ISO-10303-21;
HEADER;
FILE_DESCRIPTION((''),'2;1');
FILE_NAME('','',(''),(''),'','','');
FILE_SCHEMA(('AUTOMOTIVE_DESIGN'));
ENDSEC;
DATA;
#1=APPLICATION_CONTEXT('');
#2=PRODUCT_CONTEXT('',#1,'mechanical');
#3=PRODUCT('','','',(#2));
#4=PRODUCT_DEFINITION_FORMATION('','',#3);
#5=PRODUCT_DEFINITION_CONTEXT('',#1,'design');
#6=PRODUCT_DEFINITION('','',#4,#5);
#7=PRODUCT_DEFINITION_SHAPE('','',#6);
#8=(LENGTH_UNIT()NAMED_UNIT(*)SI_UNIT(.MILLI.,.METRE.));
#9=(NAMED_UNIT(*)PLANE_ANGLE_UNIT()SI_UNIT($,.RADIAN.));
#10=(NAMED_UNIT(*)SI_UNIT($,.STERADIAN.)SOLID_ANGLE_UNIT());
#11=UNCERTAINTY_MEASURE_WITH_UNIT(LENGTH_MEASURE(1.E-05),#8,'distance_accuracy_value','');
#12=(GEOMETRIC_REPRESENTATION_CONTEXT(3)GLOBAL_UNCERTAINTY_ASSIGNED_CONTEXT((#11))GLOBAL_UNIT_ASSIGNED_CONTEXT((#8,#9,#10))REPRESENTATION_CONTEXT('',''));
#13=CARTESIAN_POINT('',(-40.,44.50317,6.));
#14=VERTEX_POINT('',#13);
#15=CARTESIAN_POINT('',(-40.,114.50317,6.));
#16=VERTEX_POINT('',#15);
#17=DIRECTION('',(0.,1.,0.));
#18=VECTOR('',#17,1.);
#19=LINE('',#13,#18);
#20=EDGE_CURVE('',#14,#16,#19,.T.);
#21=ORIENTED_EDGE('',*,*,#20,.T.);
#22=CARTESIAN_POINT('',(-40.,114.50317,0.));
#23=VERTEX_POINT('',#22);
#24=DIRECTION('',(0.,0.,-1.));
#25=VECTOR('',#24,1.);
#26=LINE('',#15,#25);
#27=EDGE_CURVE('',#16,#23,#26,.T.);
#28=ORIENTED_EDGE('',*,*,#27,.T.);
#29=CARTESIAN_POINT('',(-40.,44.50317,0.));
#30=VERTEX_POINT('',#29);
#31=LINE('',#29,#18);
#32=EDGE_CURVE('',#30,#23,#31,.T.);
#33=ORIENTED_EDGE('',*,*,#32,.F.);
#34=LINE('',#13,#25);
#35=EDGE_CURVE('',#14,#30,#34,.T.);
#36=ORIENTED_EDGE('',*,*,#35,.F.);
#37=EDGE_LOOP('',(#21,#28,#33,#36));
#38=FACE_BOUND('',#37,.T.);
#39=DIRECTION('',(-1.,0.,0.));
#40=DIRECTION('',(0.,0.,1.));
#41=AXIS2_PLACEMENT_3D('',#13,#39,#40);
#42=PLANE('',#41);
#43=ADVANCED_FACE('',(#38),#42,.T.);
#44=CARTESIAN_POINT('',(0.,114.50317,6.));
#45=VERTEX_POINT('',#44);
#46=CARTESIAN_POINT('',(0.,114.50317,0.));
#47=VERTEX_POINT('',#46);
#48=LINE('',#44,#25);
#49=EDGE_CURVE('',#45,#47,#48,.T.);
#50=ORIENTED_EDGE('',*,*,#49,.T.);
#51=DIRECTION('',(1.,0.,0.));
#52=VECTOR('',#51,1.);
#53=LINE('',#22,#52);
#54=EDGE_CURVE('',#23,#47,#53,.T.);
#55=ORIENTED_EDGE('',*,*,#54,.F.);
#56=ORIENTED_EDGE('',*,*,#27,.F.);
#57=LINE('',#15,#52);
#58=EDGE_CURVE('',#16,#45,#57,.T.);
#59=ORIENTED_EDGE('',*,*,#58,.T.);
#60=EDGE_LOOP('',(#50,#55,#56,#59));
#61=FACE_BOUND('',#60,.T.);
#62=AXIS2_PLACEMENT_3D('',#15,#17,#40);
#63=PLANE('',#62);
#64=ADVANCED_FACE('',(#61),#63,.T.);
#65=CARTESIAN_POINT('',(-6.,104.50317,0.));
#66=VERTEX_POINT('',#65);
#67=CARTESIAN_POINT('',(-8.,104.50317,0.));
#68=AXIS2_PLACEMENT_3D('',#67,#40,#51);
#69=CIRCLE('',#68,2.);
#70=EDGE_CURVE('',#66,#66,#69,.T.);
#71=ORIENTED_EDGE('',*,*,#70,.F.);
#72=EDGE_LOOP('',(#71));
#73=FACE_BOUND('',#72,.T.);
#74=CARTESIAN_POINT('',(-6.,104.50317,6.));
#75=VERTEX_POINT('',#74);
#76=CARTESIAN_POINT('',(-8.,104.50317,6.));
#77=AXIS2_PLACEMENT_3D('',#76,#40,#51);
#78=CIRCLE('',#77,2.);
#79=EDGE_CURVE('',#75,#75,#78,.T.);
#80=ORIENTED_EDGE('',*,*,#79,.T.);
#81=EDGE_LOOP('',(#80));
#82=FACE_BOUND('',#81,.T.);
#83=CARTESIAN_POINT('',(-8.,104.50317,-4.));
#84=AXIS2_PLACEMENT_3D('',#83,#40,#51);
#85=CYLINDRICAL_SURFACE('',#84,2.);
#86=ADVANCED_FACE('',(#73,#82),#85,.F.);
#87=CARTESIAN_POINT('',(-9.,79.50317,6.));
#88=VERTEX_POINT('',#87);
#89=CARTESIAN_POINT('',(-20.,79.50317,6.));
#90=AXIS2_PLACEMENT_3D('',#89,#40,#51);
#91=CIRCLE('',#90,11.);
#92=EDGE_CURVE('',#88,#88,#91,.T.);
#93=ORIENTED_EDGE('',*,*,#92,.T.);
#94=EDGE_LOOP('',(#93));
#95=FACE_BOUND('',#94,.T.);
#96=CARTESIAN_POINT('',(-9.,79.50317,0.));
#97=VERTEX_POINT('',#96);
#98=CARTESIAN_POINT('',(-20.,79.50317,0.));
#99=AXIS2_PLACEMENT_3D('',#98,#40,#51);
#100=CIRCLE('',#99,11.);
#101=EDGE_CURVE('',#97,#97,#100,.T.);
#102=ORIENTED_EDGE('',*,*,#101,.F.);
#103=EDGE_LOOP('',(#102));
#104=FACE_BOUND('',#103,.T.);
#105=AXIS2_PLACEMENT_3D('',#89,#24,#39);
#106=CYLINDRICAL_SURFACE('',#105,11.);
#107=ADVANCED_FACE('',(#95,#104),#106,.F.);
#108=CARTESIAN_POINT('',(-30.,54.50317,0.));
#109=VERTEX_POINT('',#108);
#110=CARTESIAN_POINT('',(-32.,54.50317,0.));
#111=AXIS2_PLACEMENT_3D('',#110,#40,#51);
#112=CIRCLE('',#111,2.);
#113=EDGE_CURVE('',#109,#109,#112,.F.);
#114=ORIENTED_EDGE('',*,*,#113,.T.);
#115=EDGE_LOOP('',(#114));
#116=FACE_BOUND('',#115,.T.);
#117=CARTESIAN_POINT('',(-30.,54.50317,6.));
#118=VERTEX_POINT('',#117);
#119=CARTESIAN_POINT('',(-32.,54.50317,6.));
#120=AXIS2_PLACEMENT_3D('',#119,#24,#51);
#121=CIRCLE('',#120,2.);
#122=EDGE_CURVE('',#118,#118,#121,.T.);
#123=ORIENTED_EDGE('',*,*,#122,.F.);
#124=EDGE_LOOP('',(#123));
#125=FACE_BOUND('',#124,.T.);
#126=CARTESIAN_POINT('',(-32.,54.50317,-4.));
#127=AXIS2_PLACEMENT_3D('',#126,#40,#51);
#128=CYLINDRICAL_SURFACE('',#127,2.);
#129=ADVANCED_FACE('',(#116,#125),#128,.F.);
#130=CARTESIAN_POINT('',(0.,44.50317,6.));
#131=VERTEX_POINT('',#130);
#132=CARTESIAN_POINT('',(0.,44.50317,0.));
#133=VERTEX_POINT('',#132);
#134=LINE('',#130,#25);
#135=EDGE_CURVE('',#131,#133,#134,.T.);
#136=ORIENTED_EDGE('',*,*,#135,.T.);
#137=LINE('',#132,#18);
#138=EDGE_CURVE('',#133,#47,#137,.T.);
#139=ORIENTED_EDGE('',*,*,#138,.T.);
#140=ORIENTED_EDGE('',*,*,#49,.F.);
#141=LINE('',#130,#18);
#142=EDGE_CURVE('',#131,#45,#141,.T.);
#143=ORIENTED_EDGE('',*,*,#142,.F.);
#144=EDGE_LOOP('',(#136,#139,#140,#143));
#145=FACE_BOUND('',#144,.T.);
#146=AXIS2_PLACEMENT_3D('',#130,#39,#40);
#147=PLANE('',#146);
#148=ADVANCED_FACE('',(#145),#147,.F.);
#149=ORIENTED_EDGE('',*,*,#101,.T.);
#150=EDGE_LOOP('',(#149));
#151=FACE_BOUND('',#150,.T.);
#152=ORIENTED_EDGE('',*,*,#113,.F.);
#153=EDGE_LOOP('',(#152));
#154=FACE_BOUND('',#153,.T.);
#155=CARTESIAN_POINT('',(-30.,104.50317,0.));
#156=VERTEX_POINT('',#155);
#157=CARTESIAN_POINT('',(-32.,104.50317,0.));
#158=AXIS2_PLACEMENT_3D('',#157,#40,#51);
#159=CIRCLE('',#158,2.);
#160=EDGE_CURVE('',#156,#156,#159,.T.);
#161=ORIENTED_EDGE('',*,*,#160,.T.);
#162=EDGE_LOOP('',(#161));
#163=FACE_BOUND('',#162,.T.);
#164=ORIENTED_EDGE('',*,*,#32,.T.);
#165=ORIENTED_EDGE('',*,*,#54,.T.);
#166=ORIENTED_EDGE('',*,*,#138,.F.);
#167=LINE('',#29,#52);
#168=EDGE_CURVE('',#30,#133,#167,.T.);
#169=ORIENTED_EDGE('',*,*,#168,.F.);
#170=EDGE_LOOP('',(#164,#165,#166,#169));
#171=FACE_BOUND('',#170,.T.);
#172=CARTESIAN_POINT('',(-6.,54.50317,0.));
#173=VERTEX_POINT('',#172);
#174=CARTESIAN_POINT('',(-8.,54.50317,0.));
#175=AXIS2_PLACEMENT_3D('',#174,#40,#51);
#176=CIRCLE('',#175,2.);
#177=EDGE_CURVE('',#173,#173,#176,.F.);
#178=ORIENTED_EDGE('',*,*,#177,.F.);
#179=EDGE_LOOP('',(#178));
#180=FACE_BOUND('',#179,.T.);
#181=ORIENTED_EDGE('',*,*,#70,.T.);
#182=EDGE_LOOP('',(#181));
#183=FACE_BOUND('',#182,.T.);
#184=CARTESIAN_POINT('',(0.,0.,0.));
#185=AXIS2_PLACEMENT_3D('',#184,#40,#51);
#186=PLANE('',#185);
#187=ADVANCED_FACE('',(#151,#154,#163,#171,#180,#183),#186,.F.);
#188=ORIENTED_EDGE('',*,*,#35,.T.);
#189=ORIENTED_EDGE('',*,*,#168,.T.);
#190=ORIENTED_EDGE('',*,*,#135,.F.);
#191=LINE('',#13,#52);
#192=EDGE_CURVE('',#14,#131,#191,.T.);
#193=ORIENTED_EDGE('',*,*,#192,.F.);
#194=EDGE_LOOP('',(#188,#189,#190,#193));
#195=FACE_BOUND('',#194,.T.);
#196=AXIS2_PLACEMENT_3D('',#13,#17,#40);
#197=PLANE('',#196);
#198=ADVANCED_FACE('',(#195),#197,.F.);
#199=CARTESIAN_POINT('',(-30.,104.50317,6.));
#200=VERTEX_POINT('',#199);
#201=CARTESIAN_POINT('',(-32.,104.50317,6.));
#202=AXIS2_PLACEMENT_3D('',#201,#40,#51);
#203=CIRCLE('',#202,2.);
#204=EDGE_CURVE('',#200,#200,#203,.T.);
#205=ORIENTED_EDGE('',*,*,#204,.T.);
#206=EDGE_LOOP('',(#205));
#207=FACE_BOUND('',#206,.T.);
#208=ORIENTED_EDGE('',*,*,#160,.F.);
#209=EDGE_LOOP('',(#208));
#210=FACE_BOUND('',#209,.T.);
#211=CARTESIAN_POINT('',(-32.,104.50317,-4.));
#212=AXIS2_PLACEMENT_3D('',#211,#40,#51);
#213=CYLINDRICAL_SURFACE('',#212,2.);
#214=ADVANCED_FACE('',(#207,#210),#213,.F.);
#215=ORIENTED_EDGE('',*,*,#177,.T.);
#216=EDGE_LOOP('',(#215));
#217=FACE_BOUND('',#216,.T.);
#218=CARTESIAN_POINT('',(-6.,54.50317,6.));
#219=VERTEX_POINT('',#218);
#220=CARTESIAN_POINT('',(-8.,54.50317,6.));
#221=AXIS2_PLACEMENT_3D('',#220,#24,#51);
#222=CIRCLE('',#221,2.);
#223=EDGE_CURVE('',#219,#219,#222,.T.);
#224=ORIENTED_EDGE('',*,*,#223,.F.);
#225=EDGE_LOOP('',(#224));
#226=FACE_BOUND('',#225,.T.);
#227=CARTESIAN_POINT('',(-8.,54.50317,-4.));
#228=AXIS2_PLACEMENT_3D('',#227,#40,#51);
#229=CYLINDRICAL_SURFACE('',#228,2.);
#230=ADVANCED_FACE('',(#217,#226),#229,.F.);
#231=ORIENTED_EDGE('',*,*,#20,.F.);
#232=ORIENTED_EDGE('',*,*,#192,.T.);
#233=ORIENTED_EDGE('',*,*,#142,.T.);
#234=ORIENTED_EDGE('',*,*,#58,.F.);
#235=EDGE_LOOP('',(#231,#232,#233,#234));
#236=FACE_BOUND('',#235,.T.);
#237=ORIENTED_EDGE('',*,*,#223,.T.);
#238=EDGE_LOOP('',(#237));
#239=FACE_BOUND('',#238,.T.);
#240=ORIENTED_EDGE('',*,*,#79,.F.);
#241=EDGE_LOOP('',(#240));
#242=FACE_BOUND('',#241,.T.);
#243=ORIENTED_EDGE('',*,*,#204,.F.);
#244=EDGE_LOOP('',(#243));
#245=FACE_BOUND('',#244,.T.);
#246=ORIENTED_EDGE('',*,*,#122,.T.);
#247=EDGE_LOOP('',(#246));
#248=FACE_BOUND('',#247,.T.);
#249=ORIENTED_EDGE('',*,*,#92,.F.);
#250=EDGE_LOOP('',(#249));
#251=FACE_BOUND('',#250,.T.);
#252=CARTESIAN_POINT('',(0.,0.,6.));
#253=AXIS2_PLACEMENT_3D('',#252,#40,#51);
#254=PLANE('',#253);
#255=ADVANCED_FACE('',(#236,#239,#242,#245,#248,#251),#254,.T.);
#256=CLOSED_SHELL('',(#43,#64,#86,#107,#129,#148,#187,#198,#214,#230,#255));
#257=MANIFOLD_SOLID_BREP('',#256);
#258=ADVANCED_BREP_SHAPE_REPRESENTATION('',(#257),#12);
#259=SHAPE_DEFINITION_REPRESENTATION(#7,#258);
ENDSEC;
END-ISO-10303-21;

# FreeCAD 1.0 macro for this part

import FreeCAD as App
import Part
import Sketcher
Q = App.Units.Quantity

doc = App.newDocument("Part")
params = doc.addObject("Spreadsheet::Sheet", "Params")
for row, (alias, value) in enumerate([
    ("sketch1_diameter", "22 mm"),
    ("sketch1_width", "40 mm"),
    ("sketch1_height", "70 mm"),
    ("pad1_length", "6 mm"),
    ("sketch2_diameter", "4 mm"),
    ("pocket1_length", "10 mm"),
], start=1):
    params.set(f"A{row}", alias)
    params.set(f"B{row}", "=" + value)
    params.setAlias(f"B{row}", alias)

body = doc.addObject("PartDesign::Body", "Body")

# Sketch on XY plane
sketch1 = body.newObject("Sketcher::SketchObject", "Sketch")
sketch1.AttachmentSupport = (doc.getObject("XY_Plane"), [""])
sketch1.MapMode = "FlatFace"
sketch1.addGeometry([
    Part.LineSegment(App.Vector(-40, 115, 0), App.Vector(-40, 45, 0)),  # 0
    Part.LineSegment(App.Vector(-40, 45, 0), App.Vector(0, 45, 0)),  # 1
    Part.LineSegment(App.Vector(0, 45, 0), App.Vector(0, 115, 0)),  # 2
    Part.LineSegment(App.Vector(0, 115, 0), App.Vector(-40, 115, 0)),  # 3
    Part.Circle(App.Vector(-20, 80, 0), App.Vector(0, 0, 1), 11),  # 4
], False)
sketch1.addConstraint([
    Sketcher.Constraint("Coincident", 0, 2, 1, 1),
    Sketcher.Constraint("Coincident", 1, 2, 2, 1),
    Sketcher.Constraint("Coincident", 2, 2, 3, 1),
    Sketcher.Constraint("Coincident", 3, 2, 0, 1),
    Sketcher.Constraint("Vertical", 0),
    Sketcher.Constraint("Horizontal", 1),
    Sketcher.Constraint("Vertical", 2),
    Sketcher.Constraint("Horizontal", 3),
    Sketcher.Constraint("PointOnObject", 1, 2, -2),
    Sketcher.Constraint("Diameter", 4, Q("22 mm")),
    Sketcher.Constraint("DistanceX", 1, 1, 1, 2, Q("40 mm")),
    Sketcher.Constraint("DistanceY", 0, 2, 0, 1, Q("70 mm")),
    Sketcher.Constraint("DistanceX", 4, 3, -1, 1, Q("20 mm")),
    Sketcher.Constraint("DistanceY", 0, 2, 4, 3, Q("35 mm")),
    Sketcher.Constraint("DistanceY", -1, 1, 4, 3, Q("79.50317 mm")),
])
sketch1.setExpression("Constraints[9]", "Params.sketch1_diameter")
sketch1.setExpression("Constraints[10]", "Params.sketch1_width")
sketch1.setExpression("Constraints[11]", "Params.sketch1_height")
pad1 = body.newObject("PartDesign::Pad", "Pad")
pad1.Profile = sketch1
pad1.setExpression("Length", "Params.pad1_length")

# Sketch on XY plane
sketch2 = body.newObject("Sketcher::SketchObject", "Sketch001")
sketch2.AttachmentSupport = (doc.getObject("XY_Plane"), [""])
sketch2.MapMode = "FlatFace"
sketch2.AttachmentOffset = App.Placement(App.Vector(0, 0, 6), App.Rotation())
sketch2.addGeometry([
    Part.Circle(App.Vector(-32, 104.5, 0), App.Vector(0, 0, 1), 2),
    Part.Circle(App.Vector(-8, 104.5, 0), App.Vector(0, 0, 1), 2),
], False)
sketch2.addConstraint([
    Sketcher.Constraint("Equal", 0, 1),
    Sketcher.Constraint("Horizontal", 0, 3, 1, 3),
    Sketcher.Constraint("Diameter", 0, Q("4 mm")),
    Sketcher.Constraint("DistanceX", 0, 3, -1, 1, Q("32 mm")),
    Sketcher.Constraint("DistanceX", 1, 3, -1, 1, Q("8 mm")),
    Sketcher.Constraint("DistanceY", -1, 1, 0, 3, Q("104.50317 mm")),
])
sketch2.setExpression("Constraints[2]", "Params.sketch2_diameter")
pocket1 = body.newObject("PartDesign::Pocket", "Pocket")
pocket1.Profile = sketch2
pocket1.setExpression("Length", "Params.pocket1_length")
doc.recompute()

datumplane = body.newObject("PartDesign::Plane", "DatumPlane")
datumplane.AttachmentSupport = (doc.getObject("XZ_Plane"), [""])
datumplane.MapMode = "FlatFace"
datumplane.AttachmentOffset = App.Placement(App.Vector(0, 0, -79.50317), App.Rotation())
mirrored = body.newObject("PartDesign::Mirrored", "Mirrored")
mirrored.Originals = [pocket1]
mirrored.MirrorPlane = (datumplane, [""])
body.Tip = mirrored

doc.recompute()
